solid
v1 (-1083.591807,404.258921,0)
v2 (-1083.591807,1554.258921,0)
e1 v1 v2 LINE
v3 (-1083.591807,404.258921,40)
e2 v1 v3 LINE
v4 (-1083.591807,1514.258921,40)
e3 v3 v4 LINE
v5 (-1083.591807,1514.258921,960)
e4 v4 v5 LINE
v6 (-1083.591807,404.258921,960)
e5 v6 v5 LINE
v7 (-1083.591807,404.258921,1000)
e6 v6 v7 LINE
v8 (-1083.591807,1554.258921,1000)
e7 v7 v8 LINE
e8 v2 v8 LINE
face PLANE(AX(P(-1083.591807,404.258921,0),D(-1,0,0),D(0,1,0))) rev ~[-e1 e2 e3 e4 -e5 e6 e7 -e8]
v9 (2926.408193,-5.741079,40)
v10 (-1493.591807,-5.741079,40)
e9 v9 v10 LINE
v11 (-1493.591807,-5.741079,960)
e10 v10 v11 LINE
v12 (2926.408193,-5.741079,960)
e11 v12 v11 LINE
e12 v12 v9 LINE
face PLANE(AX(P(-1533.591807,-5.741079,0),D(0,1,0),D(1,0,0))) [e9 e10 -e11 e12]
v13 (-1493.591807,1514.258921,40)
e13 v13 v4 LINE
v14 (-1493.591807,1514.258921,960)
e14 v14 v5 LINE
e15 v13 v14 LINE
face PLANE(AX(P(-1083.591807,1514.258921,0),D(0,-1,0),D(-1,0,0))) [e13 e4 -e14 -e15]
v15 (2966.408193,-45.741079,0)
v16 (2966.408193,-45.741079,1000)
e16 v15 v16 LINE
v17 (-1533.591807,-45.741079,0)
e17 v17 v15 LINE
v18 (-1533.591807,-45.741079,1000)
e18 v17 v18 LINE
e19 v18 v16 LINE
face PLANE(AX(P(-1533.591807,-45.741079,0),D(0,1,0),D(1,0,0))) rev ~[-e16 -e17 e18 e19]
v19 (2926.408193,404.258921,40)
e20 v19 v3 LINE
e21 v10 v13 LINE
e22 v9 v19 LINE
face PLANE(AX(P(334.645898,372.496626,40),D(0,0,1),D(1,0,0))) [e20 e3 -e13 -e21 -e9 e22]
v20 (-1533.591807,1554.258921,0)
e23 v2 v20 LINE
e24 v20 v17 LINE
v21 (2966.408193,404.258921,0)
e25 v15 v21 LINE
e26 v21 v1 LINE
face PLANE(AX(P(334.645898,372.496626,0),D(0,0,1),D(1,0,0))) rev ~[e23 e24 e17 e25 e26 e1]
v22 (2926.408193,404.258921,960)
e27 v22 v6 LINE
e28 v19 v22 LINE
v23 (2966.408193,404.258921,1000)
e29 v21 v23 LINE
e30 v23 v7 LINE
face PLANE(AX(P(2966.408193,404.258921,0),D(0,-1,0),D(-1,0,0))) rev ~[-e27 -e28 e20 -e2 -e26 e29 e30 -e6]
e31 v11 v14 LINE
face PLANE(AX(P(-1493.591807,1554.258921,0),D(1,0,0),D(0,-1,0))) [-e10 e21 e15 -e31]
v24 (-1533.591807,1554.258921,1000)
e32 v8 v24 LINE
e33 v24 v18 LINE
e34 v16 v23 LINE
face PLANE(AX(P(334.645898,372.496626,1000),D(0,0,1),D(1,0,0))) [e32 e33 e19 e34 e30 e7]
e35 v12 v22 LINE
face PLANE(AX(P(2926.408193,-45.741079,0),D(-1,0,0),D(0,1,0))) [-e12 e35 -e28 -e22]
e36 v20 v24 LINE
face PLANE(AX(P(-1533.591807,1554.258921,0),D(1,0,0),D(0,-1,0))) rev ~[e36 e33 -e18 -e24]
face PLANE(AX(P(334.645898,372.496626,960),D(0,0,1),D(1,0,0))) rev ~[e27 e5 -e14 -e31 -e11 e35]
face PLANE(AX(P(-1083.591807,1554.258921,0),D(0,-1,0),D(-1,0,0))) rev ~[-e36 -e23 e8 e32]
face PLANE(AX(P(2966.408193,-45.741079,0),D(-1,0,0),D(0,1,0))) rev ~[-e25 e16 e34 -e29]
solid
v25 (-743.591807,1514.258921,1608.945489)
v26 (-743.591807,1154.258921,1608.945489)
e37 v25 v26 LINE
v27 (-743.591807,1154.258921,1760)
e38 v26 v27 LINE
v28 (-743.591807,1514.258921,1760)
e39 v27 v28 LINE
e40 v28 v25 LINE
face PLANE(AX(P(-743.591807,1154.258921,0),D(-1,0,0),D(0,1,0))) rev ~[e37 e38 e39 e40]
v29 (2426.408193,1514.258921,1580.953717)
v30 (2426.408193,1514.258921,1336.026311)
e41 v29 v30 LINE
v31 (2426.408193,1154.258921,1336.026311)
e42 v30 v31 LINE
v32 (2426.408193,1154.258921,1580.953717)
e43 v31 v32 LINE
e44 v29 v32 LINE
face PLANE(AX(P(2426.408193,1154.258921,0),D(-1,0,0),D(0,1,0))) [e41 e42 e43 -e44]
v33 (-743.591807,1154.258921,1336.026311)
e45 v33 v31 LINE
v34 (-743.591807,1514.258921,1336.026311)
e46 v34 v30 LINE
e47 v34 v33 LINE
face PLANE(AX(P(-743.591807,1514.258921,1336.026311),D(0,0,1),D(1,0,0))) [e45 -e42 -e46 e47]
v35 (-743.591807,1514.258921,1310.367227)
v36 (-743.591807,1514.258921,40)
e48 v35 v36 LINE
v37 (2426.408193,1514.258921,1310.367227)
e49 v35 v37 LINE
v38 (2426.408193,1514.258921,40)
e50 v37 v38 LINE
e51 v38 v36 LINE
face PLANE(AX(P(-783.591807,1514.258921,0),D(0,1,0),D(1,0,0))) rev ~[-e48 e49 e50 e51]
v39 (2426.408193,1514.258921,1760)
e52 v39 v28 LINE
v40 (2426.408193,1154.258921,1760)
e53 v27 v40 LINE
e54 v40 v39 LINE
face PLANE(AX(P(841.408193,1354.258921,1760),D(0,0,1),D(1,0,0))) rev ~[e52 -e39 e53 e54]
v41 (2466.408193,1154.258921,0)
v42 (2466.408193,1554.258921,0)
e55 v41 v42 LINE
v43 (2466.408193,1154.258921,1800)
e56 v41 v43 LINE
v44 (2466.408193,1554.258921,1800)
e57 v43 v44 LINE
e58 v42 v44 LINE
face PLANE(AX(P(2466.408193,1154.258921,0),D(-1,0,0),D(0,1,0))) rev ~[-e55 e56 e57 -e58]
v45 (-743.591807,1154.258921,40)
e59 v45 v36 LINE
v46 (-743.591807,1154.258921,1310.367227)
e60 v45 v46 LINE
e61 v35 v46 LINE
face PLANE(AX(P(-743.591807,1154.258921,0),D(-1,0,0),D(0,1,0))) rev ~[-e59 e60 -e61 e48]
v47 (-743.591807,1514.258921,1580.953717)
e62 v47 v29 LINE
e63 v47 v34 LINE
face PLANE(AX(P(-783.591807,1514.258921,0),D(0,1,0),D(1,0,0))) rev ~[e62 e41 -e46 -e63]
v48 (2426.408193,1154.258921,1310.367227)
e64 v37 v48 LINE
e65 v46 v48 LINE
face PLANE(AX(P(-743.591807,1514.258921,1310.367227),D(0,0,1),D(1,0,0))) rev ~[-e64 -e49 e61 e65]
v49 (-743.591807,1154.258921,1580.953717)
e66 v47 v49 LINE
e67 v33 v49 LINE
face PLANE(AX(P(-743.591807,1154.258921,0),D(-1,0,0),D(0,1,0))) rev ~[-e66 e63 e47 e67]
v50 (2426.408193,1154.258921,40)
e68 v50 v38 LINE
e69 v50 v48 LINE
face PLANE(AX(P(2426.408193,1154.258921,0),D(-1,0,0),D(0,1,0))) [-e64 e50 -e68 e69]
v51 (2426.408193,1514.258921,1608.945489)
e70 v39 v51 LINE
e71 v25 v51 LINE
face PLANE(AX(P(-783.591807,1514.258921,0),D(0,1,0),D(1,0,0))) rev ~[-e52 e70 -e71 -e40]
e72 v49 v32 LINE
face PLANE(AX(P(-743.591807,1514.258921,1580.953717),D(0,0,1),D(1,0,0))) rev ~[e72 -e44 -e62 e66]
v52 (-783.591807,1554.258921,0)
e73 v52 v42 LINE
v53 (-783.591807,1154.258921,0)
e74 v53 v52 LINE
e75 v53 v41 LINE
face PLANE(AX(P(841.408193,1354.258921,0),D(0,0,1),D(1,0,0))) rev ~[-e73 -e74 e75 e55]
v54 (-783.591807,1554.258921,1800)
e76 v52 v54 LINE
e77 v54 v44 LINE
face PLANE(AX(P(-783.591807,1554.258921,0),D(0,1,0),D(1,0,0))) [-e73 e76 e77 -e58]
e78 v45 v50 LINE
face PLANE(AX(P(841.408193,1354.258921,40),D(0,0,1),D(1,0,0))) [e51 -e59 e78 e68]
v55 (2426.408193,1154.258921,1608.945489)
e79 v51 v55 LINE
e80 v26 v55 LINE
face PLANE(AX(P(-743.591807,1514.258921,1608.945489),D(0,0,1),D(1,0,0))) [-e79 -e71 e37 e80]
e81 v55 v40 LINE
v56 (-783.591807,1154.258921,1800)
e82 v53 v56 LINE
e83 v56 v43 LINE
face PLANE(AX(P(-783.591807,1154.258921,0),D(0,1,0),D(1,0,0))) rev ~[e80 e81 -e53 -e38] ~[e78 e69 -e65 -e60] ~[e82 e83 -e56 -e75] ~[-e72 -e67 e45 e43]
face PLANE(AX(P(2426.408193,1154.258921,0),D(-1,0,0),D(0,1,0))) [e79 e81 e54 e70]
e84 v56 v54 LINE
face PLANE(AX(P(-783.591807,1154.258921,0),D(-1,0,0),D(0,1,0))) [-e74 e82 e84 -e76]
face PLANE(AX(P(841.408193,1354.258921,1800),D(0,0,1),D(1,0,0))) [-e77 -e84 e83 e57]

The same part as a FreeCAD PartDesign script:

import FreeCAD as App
import Part
import Sketcher
Q = App.Units.Quantity


def faces_at(feature, points):
    """Names of the faces that lie closest to the given points."""
    faces = feature.Shape.Faces
    near = lambda p: min(range(len(faces)), key=lambda i: faces[i].distToShape(Part.Vertex(*p))[0])
    return sorted({f"Face{near(p) + 1}" for p in points})

doc = App.newDocument("Part")
body = doc.addObject("PartDesign::Body", "Body")

sketch1 = doc.addObject("Sketcher::SketchObject", "Sketch")
body.addObject(sketch1)
sketch1.AttachmentSupport = (doc.XY_Plane, [""])
sketch1.MapMode = "FlatFace"
sketch1.addGeometry([
    Part.LineSegment(App.Vector(2966, 404, 0), App.Vector(-1084, 404, 0)),
    Part.LineSegment(App.Vector(-1084, 404, 0), App.Vector(-1084, 1554, 0)),
    Part.LineSegment(App.Vector(-1084, 1554, 0), App.Vector(-1534, 1554, 0)),
    Part.LineSegment(App.Vector(-1534, 1554, 0), App.Vector(-1534, -46, 0)),
    Part.LineSegment(App.Vector(-1534, -46, 0), App.Vector(2966, -46, 0)),
    Part.LineSegment(App.Vector(2966, -46, 0), App.Vector(2966, 404, 0)),
], False)
sketch1.addConstraint([
    Sketcher.Constraint("Coincident", 0, 2, 1, 1),
    Sketcher.Constraint("Coincident", 1, 2, 2, 1),
    Sketcher.Constraint("Coincident", 2, 2, 3, 1),
    Sketcher.Constraint("Coincident", 3, 2, 4, 1),
    Sketcher.Constraint("Coincident", 4, 2, 5, 1),
    Sketcher.Constraint("Coincident", 5, 2, 0, 1),
    Sketcher.Constraint("Horizontal", 0),
    Sketcher.Constraint("Vertical", 1),
    Sketcher.Constraint("Horizontal", 2),
    Sketcher.Constraint("Vertical", 3),
    Sketcher.Constraint("Horizontal", 4),
    Sketcher.Constraint("Vertical", 5),
    Sketcher.Constraint("Equal", 2, 5),
    Sketcher.Constraint("DistanceX", 0, 2, 0, 1, Q("4050 mm")),
    Sketcher.Constraint("DistanceX", 2, 2, 2, 1, Q("450 mm")),
    Sketcher.Constraint("DistanceY", 1, 1, 1, 2, Q("1150 mm")),
    Sketcher.Constraint("DistanceY", -1, 1, 0, 2, Q("404.258921 mm")),
    Sketcher.Constraint("DistanceX", 0, 2, -1, 1, Q("1083.591807 mm")),
])
pad1 = doc.addObject("PartDesign::Pad", "Pad")
body.addObject(pad1)
pad1.Profile = sketch1
pad1.Length = 1000
doc.recompute()

thickness = doc.addObject("PartDesign::Thickness", "Thickness")
body.addObject(thickness)
thickness.Base = (pad1, faces_at(pad1, [(941.408, 404.259, 500), (-1083.592, 979.259, 500)]))
thickness.Value = 40
thickness.Reversed = True
thickness.Join = "Arc"
body2 = doc.addObject("PartDesign::Body", "Body001")

sketch2 = doc.addObject("Sketcher::SketchObject", "Sketch001")
body2.addObject(sketch2)
sketch2.AttachmentSupport = (doc.getObject("XY_Plane001"), [""])
sketch2.MapMode = "FlatFace"
sketch2.addGeometry([
    Part.LineSegment(App.Vector(-784, 1554, 0), App.Vector(-784, 1154, 0)),
    Part.LineSegment(App.Vector(-784, 1154, 0), App.Vector(2466, 1154, 0)),
    Part.LineSegment(App.Vector(2466, 1154, 0), App.Vector(2466, 1554, 0)),
    Part.LineSegment(App.Vector(2466, 1554, 0), App.Vector(-784, 1554, 0)),
], False)
sketch2.addConstraint([
    Sketcher.Constraint("Coincident", 0, 2, 1, 1),
    Sketcher.Constraint("Coincident", 1, 2, 2, 1),
    Sketcher.Constraint("Coincident", 2, 2, 3, 1),
    Sketcher.Constraint("Coincident", 3, 2, 0, 1),
    Sketcher.Constraint("Vertical", 0),
    Sketcher.Constraint("Horizontal", 1),
    Sketcher.Constraint("Vertical", 2),
    Sketcher.Constraint("Horizontal", 3),
    Sketcher.Constraint("DistanceX", 1, 1, 1, 2, Q("3250 mm")),
    Sketcher.Constraint("DistanceY", 0, 2, 0, 1, Q("400 mm")),
    Sketcher.Constraint("DistanceY", -1, 1, 0, 2, Q("1154.258921 mm")),
    Sketcher.Constraint("DistanceX", 0, 2, -1, 1, Q("783.591807 mm")),
])
pad2 = doc.addObject("PartDesign::Pad", "Pad001")
body2.addObject(pad2)
pad2.Profile = sketch2
pad2.Length = 1800
doc.recompute()

thickness2 = doc.addObject("PartDesign::Thickness", "Thickness001")
body2.addObject(thickness2)
thickness2.Base = (pad2, faces_at(pad2, [(841.408, 1154.259, 900)]))
thickness2.Value = 40
thickness2.Reversed = True
thickness2.Join = "Arc"

sketch3 = doc.addObject("Sketcher::SketchObject", "Sketch002")
body2.addObject(sketch3)
sketch3.AttachmentSupport = (doc.getObject("XZ_Plane001"), [""])
sketch3.MapMode = "FlatFace"
sketch3.AttachmentOffset = App.Placement(App.Vector(0, 0, -1514.258921), App.Rotation())
sketch3.addGeometry([
    Part.LineSegment(App.Vector(-744, 1336, 0), App.Vector(-744, 1310, 0)),
    Part.LineSegment(App.Vector(-744, 1310, 0), App.Vector(2426, 1310, 0)),
    Part.LineSegment(App.Vector(2426, 1310, 0), App.Vector(2426, 1336, 0)),
    Part.LineSegment(App.Vector(2426, 1336, 0), App.Vector(-744, 1336, 0)),
    Part.LineSegment(App.Vector(-744, 1609, 0), App.Vector(-744, 1581, 0)),
    Part.LineSegment(App.Vector(-744, 1581, 0), App.Vector(2426, 1581, 0)),
    Part.LineSegment(App.Vector(2426, 1581, 0), App.Vector(2426, 1609, 0)),
    Part.LineSegment(App.Vector(2426, 1609, 0), App.Vector(-744, 1609, 0)),
], False)
sketch3.addConstraint([
    Sketcher.Constraint("Coincident", 0, 2, 1, 1),
    Sketcher.Constraint("Coincident", 1, 2, 2, 1),
    Sketcher.Constraint("Coincident", 2, 2, 3, 1),
    Sketcher.Constraint("Coincident", 3, 2, 0, 1),
    Sketcher.Constraint("Coincident", 4, 2, 5, 1),
    Sketcher.Constraint("Coincident", 5, 2, 6, 1),
    Sketcher.Constraint("Coincident", 6, 2, 7, 1),
    Sketcher.Constraint("Coincident", 7, 2, 4, 1),
    Sketcher.Constraint("Vertical", 0),
    Sketcher.Constraint("Horizontal", 1),
    Sketcher.Constraint("Vertical", 2),
    Sketcher.Constraint("Horizontal", 3),
    Sketcher.Constraint("Vertical", 4),
    Sketcher.Constraint("Horizontal", 5),
    Sketcher.Constraint("Vertical", 6),
    Sketcher.Constraint("Horizontal", 7),
    Sketcher.Constraint("Vertical", 3, 2, 4, 2),
    Sketcher.Constraint("Vertical", 2, 2, 5, 2),
    Sketcher.Constraint("DistanceX", 1, 1, 1, 2, Q("3170 mm")),
    Sketcher.Constraint("DistanceY", 4, 2, 4, 1, Q("27.991772 mm")),
    Sketcher.Constraint("DistanceY", 0, 2, 0, 1, Q("25.659084 mm")),
    Sketcher.Constraint("DistanceY", -1, 1, 2, 2, Q("1336.026311 mm")),
    Sketcher.Constraint("DistanceY", -1, 1, 6, 2, Q("1608.945489 mm")),
    Sketcher.Constraint("DistanceX", 0, 2, -1, 1, Q("743.591807 mm")),
])
pad3 = doc.addObject("PartDesign::Pad", "Pad002")
body2.addObject(pad3)
pad3.Profile = sketch3
pad3.Length = 360

doc.recompute()
